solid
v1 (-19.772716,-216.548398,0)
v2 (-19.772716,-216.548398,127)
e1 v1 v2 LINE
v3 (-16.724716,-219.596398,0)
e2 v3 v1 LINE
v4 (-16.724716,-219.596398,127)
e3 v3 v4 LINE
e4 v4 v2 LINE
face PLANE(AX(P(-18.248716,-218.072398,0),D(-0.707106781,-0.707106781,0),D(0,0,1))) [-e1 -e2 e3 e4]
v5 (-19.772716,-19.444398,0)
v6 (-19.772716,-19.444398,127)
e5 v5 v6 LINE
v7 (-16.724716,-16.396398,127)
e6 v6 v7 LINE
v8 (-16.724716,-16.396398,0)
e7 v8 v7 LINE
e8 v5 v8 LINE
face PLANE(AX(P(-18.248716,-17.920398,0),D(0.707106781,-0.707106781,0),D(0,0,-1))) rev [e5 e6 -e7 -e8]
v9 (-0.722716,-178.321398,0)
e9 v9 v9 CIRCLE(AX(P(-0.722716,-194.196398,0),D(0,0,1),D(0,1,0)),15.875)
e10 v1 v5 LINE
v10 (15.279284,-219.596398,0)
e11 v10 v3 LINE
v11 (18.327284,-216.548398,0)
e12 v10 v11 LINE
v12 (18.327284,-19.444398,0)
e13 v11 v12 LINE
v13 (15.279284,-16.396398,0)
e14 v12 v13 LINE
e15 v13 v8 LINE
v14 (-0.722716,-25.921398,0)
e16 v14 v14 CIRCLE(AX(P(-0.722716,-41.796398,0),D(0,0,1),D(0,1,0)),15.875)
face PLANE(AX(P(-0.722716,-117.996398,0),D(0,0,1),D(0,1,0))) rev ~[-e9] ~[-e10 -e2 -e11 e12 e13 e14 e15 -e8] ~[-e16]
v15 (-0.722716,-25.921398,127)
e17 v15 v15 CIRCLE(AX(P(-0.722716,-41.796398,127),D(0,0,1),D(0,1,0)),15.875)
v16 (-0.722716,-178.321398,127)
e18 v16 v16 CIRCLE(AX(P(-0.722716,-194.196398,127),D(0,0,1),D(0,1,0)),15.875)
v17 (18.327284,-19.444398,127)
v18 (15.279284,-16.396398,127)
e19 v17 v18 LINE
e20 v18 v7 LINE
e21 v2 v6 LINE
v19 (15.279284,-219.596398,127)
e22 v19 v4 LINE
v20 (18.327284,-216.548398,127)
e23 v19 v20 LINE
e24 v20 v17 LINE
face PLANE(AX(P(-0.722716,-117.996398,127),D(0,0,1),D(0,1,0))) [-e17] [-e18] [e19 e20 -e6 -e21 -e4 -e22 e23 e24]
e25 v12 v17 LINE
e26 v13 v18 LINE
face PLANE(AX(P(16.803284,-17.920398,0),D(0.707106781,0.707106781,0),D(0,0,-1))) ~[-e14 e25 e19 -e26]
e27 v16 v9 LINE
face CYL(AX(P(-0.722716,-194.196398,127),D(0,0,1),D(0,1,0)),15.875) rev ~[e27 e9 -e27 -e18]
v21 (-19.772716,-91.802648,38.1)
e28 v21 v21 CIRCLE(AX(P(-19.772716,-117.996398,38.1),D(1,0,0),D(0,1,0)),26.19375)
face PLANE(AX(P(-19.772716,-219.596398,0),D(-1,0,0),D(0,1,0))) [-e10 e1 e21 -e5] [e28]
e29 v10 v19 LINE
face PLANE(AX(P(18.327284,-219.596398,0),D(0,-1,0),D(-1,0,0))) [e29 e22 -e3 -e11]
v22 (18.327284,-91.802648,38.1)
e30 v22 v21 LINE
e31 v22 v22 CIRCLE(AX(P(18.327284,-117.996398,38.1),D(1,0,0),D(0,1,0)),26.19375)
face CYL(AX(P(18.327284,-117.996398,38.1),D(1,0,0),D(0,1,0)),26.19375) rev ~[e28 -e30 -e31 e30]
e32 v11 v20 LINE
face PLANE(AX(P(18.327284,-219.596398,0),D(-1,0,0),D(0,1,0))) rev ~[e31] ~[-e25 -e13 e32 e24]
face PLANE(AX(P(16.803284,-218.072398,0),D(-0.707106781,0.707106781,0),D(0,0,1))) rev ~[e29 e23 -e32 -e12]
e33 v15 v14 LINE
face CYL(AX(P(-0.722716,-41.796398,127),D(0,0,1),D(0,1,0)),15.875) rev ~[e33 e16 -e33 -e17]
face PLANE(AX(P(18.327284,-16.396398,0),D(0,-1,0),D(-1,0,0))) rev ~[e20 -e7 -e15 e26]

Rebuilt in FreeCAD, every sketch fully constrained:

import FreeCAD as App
import Part
import Sketcher

V = App.Vector
Q = App.Units.Quantity


def edges_at(feature, points):
    """Names of the edges that pass closest to the given points."""
    edges = feature.Shape.Edges
    near = lambda p: min(range(len(edges)), key=lambda i: edges[i].distToShape(Part.Vertex(*p))[0])
    return sorted({f"Edge{near(p) + 1}" for p in points})


def add_polygon(sketch, points):
    """Adds a closed chain of lines whose ends are joined by coincident constraints."""
    first, n = sketch.GeometryCount, len(points)
    for a, b in zip(points, points[1:] + points[:1]):
        sketch.addGeometry(Part.LineSegment(App.Vector(*a, 0), App.Vector(*b, 0)), False)
    for i in range(n):
        sketch.addConstraint(Sketcher.Constraint("Coincident", first + i, 2, first + (i + 1) % n, 1))

doc = App.newDocument("Part")
params = doc.addObject("Spreadsheet::Sheet", "Params")
for row, (alias, value) in enumerate([
    ("sketch1_width", "8 in"),
    ("sketch1_height", "1.5 in"),
    ("pad1_length", "5 in"),
    ("sketch2_diameter", "1.25 in"),
    ("chamfer_size", "0.12 in"),
    ("sketch3_diameter", "2.0625 in"),
], start=1):
    params.set(f"A{row}", alias)
    params.set(f"B{row}", "=" + value)
    params.setAlias(f"B{row}", alias)

body = doc.addObject("PartDesign::Body", "Body")

# Sketch on XY plane
sketch1 = body.newObject("Sketcher::SketchObject", "Sketch")
sketch1.AttachmentSupport = (doc.getObject("XY_Plane"), [""])
sketch1.MapMode = "FlatFace"
add_polygon(sketch1, [(-182, 19), (-182, -19), (21, -19), (21, 19)])  # lines 0-3
sketch1.addConstraint([
    Sketcher.Constraint("Vertical", 0),
    Sketcher.Constraint("Horizontal", 1),
    Sketcher.Constraint("Vertical", 2),
    Sketcher.Constraint("Horizontal", 3),
    Sketcher.Constraint("DistanceX", 1, 1, 1, 2, Q("8 in")),
    Sketcher.Constraint("DistanceY", 0, 2, 0, 1, Q("1.5 in")),
    Sketcher.Constraint("DistanceY", 0, 2, -1, 1, 19.444398),
    Sketcher.Constraint("DistanceX", 0, 2, -1, 1, 181.824716),
])
sketch1.setExpression("Constraints[8]", "Params.sketch1_width")
sketch1.setExpression("Constraints[9]", "Params.sketch1_height")
pad1 = body.newObject("PartDesign::Pad", "Pad")
pad1.Profile = sketch1
pad1.setExpression("Length", "Params.pad1_length")

# Sketch on XY plane
sketch2 = body.newObject("Sketcher::SketchObject", "Sketch001")
sketch2.AttachmentSupport = (doc.getObject("XY_Plane"), [""])
sketch2.MapMode = "FlatFace"
sketch2.AttachmentOffset = App.Placement(V(0, 0, 5 * 25.4), App.Rotation())
sketch2.addGeometry([
    Part.Circle(V(-156, 0, 0), V(0, 0, 1), 16),
    Part.Circle(V(-4, 0, 0), V(0, 0, 1), 16),
], False)
sketch2.addConstraint([
    Sketcher.Constraint("Equal", 0, 1),
    Sketcher.Constraint("Horizontal", 0, 3, 1, 3),
    Sketcher.Constraint("Diameter", 0, Q("1.25 in")),
    Sketcher.Constraint("DistanceX", 0, 3, 1, 3, Q("6 in")),
    Sketcher.Constraint("DistanceY", 0, 3, -1, 1, 0.394398),
    Sketcher.Constraint("DistanceX", 0, 3, -1, 1, 156.424716),
])
sketch2.setExpression("Constraints[2]", "Params.sketch2_diameter")
pocket1 = body.newObject("PartDesign::Pocket", "Pocket")
pocket1.Profile = sketch2
pocket1.Type = "ThroughAll"
doc.recompute()

chamfer = body.newObject("PartDesign::Chamfer", "Chamfer")
chamfer.Base = (pocket1, edges_at(pocket1, [
    (-181.825, -19.444, 63.5),
    (21.375, -19.444, 63.5),
    (21.375, 18.656, 63.5),
    (-181.825, 18.656, 63.5),
]))
chamfer.setExpression("Size", "Params.chamfer_size")

# Sketch on XZ plane
sketch3 = body.newObject("Sketcher::SketchObject", "Sketch002")
sketch3.AttachmentSupport = (doc.getObject("XZ_Plane"), [""])
sketch3.MapMode = "FlatFace"
sketch3.AttachmentOffset = App.Placement(V(0, 0, 19.444398), App.Rotation())
sketch3.addGeometry(Part.Circle(V(-80, 38, 0), V(0, 0, 1), 26), False)
sketch3.addConstraint([
    Sketcher.Constraint("Diameter", 0, Q("2.0625 in")),
    Sketcher.Constraint("DistanceY", -1, 1, 0, 3, Q("1.5 in")),
    Sketcher.Constraint("DistanceX", 0, 3, -1, 1, 80.224716),
])
sketch3.setExpression("Constraints[0]", "Params.sketch3_diameter")
pocket2 = body.newObject("PartDesign::Pocket", "Pocket001")
pocket2.Profile = sketch3
pocket2.Type = "ThroughAll"
body2 = doc.addObject("PartDesign::Body", "Body001")
doc.recompute()

body.Placement = App.Placement(V(-1.117114, -37.771683, 0), App.Rotation(V(0, 0, 1), 90))
boolean = body2.newObject("PartDesign::Boolean", "Boolean")
boolean.Type = "Fuse"
boolean.addObjects([body])

doc.recompute()
